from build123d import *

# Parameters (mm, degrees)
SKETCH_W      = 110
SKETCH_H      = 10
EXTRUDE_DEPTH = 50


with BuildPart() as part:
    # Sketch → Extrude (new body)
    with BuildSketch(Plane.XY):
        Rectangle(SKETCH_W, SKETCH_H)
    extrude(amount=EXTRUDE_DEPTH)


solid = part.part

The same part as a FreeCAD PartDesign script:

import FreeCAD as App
import Part
import Sketcher
Q = App.Units.Quantity

doc = App.newDocument("Part")
body = doc.addObject("PartDesign::Body", "Body")

# Sketch on XY plane
sketch1 = doc.addObject("Sketcher::SketchObject", "Sketch")
body.addObject(sketch1)
sketch1.AttachmentSupport = (doc.XY_Plane, [""])
sketch1.MapMode = "FlatFace"
sketch1.addGeometry(Part.LineSegment(App.Vector(-55, 5, 0), App.Vector(-55, -5, 0)), False)
sketch1.addGeometry(Part.LineSegment(App.Vector(-55, -5, 0), App.Vector(55, -5, 0)), False)
sketch1.addGeometry(Part.LineSegment(App.Vector(55, -5, 0), App.Vector(55, 5, 0)), False)
sketch1.addGeometry(Part.LineSegment(App.Vector(55, 5, 0), App.Vector(-55, 5, 0)), False)
sketch1.addConstraint(Sketcher.Constraint("Coincident", 0, 2, 1, 1))
sketch1.addConstraint(Sketcher.Constraint("Coincident", 1, 2, 2, 1))
sketch1.addConstraint(Sketcher.Constraint("Coincident", 2, 2, 3, 1))
sketch1.addConstraint(Sketcher.Constraint("Coincident", 3, 2, 0, 1))
sketch1.addConstraint(Sketcher.Constraint("Vertical", 0))
sketch1.addConstraint(Sketcher.Constraint("Horizontal", 1))
sketch1.addConstraint(Sketcher.Constraint("Vertical", 2))
sketch1.addConstraint(Sketcher.Constraint("Horizontal", 3))
sketch1.addConstraint(Sketcher.Constraint("Symmetric", 0, 2, 2, 2, -1, 1))
sketch1.addConstraint(Sketcher.Constraint("DistanceX", 1, 1, 1, 2, Q("110 mm")))
sketch1.addConstraint(Sketcher.Constraint("DistanceY", 0, 2, 0, 1, Q("10 mm")))
pad1 = doc.addObject("PartDesign::Pad", "Pad")
body.addObject(pad1)
pad1.Profile = sketch1
pad1.Length = 50

doc.recompute()
